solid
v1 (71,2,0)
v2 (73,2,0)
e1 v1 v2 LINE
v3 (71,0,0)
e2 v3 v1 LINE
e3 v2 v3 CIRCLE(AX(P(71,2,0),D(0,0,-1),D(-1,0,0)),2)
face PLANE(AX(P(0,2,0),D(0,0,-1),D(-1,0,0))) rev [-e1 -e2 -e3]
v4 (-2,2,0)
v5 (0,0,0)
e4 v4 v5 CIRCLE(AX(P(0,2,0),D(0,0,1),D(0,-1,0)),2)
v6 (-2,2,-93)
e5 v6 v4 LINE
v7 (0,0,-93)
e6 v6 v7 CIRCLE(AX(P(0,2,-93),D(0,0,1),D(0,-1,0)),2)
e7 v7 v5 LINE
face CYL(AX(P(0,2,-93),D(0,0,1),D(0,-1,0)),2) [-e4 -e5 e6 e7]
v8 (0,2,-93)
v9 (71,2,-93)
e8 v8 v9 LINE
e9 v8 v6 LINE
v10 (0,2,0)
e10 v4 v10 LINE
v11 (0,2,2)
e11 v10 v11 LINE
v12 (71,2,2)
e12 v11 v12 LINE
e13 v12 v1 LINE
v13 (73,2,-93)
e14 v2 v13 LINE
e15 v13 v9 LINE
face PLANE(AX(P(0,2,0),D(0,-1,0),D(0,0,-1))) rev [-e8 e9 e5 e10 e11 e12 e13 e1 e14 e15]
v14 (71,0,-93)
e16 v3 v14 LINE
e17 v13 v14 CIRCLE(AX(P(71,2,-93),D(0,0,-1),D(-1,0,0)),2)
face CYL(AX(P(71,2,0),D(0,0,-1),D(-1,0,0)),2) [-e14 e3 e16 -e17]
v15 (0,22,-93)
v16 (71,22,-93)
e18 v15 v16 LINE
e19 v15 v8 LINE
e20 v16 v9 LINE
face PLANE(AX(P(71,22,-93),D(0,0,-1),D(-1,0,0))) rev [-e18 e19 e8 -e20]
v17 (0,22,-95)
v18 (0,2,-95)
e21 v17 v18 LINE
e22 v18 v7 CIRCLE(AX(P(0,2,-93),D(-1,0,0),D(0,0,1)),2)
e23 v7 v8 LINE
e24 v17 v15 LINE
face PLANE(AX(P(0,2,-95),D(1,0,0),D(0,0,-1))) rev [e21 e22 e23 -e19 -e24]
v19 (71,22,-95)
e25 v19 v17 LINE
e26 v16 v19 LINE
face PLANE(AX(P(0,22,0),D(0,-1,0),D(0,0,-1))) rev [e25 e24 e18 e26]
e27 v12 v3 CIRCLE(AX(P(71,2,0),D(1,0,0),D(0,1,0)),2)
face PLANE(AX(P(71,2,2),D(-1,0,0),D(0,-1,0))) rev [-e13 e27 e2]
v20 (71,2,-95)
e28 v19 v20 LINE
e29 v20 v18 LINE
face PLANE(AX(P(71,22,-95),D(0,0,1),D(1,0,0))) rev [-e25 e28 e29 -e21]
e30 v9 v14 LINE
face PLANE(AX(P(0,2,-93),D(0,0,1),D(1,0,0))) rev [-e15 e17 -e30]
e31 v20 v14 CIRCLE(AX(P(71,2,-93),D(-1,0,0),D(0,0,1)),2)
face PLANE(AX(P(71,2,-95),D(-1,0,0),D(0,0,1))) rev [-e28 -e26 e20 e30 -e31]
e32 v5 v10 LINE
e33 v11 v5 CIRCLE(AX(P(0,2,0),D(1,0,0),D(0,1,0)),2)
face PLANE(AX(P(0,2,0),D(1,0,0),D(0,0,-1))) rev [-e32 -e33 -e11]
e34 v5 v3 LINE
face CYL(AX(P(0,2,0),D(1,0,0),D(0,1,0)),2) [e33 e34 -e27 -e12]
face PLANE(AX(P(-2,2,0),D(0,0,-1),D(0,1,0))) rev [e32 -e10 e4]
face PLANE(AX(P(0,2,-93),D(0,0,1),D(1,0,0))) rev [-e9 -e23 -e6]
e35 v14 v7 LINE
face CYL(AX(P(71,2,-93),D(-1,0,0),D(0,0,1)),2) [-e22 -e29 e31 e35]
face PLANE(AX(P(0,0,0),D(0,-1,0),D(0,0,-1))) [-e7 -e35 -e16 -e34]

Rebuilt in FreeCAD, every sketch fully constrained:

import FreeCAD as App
import Part
import Sketcher
Q = App.Units.Quantity

doc = App.newDocument("Part")
body = doc.addObject("PartDesign::Body", "Body")

# Sketch on XZ plane
sketch1 = doc.addObject("Sketcher::SketchObject", "Sketch")
body.addObject(sketch1)
sketch1.AttachmentSupport = (doc.XZ_Plane, [""])
sketch1.MapMode = "FlatFace"
sketch1.addGeometry([
    Part.LineSegment(App.Vector(0, -93, 0), App.Vector(0, 0, 0)),
    Part.LineSegment(App.Vector(0, 0, 0), App.Vector(71, 0, 0)),
    Part.LineSegment(App.Vector(71, 0, 0), App.Vector(71, -93, 0)),
    Part.LineSegment(App.Vector(71, -93, 0), App.Vector(0, -93, 0)),
], False)
sketch1.addConstraint([
    Sketcher.Constraint("Coincident", 0, 2, 1, 1),
    Sketcher.Constraint("Coincident", 1, 2, 2, 1),
    Sketcher.Constraint("Coincident", 2, 2, 3, 1),
    Sketcher.Constraint("Coincident", 3, 2, 0, 1),
    Sketcher.Constraint("Vertical", 0),
    Sketcher.Constraint("Horizontal", 1),
    Sketcher.Constraint("Vertical", 2),
    Sketcher.Constraint("Horizontal", 3),
    Sketcher.Constraint("Coincident", 0, 2, -1, 1),
    Sketcher.Constraint("DistanceX", 1, 1, 1, 2, Q("71 mm")),
    Sketcher.Constraint("DistanceY", 0, 1, 0, 2, Q("93 mm")),
])
pad1 = doc.addObject("PartDesign::Pad", "Pad")
body.addObject(pad1)
pad1.Profile = sketch1
pad1.Length = 2
pad1.Reversed = True

# Sketch on YZ plane
sketch2 = doc.addObject("Sketcher::SketchObject", "Sketch001")
body.addObject(sketch2)
sketch2.AttachmentSupport = (doc.YZ_Plane, [""])
sketch2.MapMode = "FlatFace"
sketch2.AttachmentOffset = App.Placement(App.Vector(0, 0, 71), App.Rotation())
sketch2.addGeometry([
    Part.LineSegment(App.Vector(2, 0, 0), App.Vector(0, 0, 0)),
    Part.LineSegment(App.Vector(0, 0, 0), App.Vector(0, -93, 0)),
    Part.LineSegment(App.Vector(0, -93, 0), App.Vector(2, -93, 0)),
    Part.LineSegment(App.Vector(2, -93, 0), App.Vector(2, 0, 0)),
], False)
sketch2.addGeometry(Part.LineSegment(App.Vector(2, -93, 0), App.Vector(2, 0, 0)), True)  # axis
sketch2.addConstraint([
    Sketcher.Constraint("Coincident", 0, 2, 1, 1),
    Sketcher.Constraint("Coincident", 1, 2, 2, 1),
    Sketcher.Constraint("Coincident", 2, 2, 3, 1),
    Sketcher.Constraint("Coincident", 3, 2, 0, 1),
    Sketcher.Constraint("Horizontal", 0),
    Sketcher.Constraint("Vertical", 1),
    Sketcher.Constraint("Horizontal", 2),
    Sketcher.Constraint("Vertical", 3),
    Sketcher.Constraint("Vertical", 4),
    Sketcher.Constraint("Coincident", 0, 2, -1, 1),
    Sketcher.Constraint("Coincident", 4, 1, 2, 2),
    Sketcher.Constraint("PointOnObject", 4, 2, -1),
    Sketcher.Constraint("DistanceX", 0, 2, 0, 1, Q("2 mm")),
    Sketcher.Constraint("DistanceY", 1, 2, 1, 1, Q("93 mm")),
])
revolution = doc.addObject("PartDesign::Revolution", "Revolution")
body.addObject(revolution)
revolution.Profile = sketch2
revolution.ReferenceAxis = (sketch2, ["Axis0"])
revolution.Angle = 90

# Sketch on XY plane
sketch3 = doc.addObject("Sketcher::SketchObject", "Sketch002")
body.addObject(sketch3)
sketch3.AttachmentSupport = (doc.XY_Plane, [""])
sketch3.MapMode = "FlatFace"
sketch3.addGeometry([
    Part.LineSegment(App.Vector(0, 2, 0), App.Vector(0, 0, 0)),
    Part.LineSegment(App.Vector(0, 0, 0), App.Vector(71, 0, 0)),
    Part.LineSegment(App.Vector(71, 0, 0), App.Vector(71, 2, 0)),
    Part.LineSegment(App.Vector(71, 2, 0), App.Vector(0, 2, 0)),
], False)
sketch3.addGeometry(Part.LineSegment(App.Vector(71, 2, 0), App.Vector(0, 2, 0)), True)  # axis
sketch3.addConstraint([
    Sketcher.Constraint("Coincident", 0, 2, 1, 1),
    Sketcher.Constraint("Coincident", 1, 2, 2, 1),
    Sketcher.Constraint("Coincident", 2, 2, 3, 1),
    Sketcher.Constraint("Coincident", 3, 2, 0, 1),
    Sketcher.Constraint("Vertical", 0),
    Sketcher.Constraint("Horizontal", 1),
    Sketcher.Constraint("Vertical", 2),
    Sketcher.Constraint("Horizontal", 3),
    Sketcher.Constraint("Horizontal", 4),
    Sketcher.Constraint("Coincident", 0, 2, -1, 1),
    Sketcher.Constraint("Coincident", 4, 1, 2, 2),
    Sketcher.Constraint("PointOnObject", 4, 2, -2),
    Sketcher.Constraint("DistanceX", 1, 1, 1, 2, Q("71 mm")),
    Sketcher.Constraint("DistanceY", 0, 2, 0, 1, Q("2 mm")),
])
revolution2 = doc.addObject("PartDesign::Revolution", "Revolution001")
body.addObject(revolution2)
revolution2.Profile = sketch3
revolution2.ReferenceAxis = (sketch3, ["Axis0"])
revolution2.Angle = 90

# Sketch on YZ plane
sketch4 = doc.addObject("Sketcher::SketchObject", "Sketch003")
body.addObject(sketch4)
sketch4.AttachmentSupport = (doc.YZ_Plane, [""])
sketch4.MapMode = "FlatFace"
sketch4.addGeometry([
    Part.LineSegment(App.Vector(2, -93, 0), App.Vector(0, -93, 0)),
    Part.LineSegment(App.Vector(0, -93, 0), App.Vector(0, 0, 0)),
    Part.LineSegment(App.Vector(0, 0, 0), App.Vector(2, 0, 0)),
    Part.LineSegment(App.Vector(2, 0, 0), App.Vector(2, -93, 0)),
], False)
sketch4.addGeometry(Part.LineSegment(App.Vector(2, 0, 0), App.Vector(2, -93, 0)), True)  # axis
sketch4.addConstraint([
    Sketcher.Constraint("Coincident", 0, 2, 1, 1),
    Sketcher.Constraint("Coincident", 1, 2, 2, 1),
    Sketcher.Constraint("Coincident", 2, 2, 3, 1),
    Sketcher.Constraint("Coincident", 3, 2, 0, 1),
    Sketcher.Constraint("Horizontal", 0),
    Sketcher.Constraint("Vertical", 1),
    Sketcher.Constraint("Horizontal", 2),
    Sketcher.Constraint("Vertical", 3),
    Sketcher.Constraint("Vertical", 4),
    Sketcher.Constraint("Coincident", 1, 2, -1, 1),
    Sketcher.Constraint("Coincident", 4, 1, 2, 2),
    Sketcher.Constraint("Horizontal", 0, 2, 4, 2),
    Sketcher.Constraint("DistanceX", 0, 2, 0, 1, Q("2 mm")),
    Sketcher.Constraint("DistanceY", 1, 1, 1, 2, Q("93 mm")),
])
revolution3 = doc.addObject("PartDesign::Revolution", "Revolution002")
body.addObject(revolution3)
revolution3.Profile = sketch4
revolution3.ReferenceAxis = (sketch4, ["Axis0"])
revolution3.Angle = 90

# Sketch on XY plane
sketch5 = doc.addObject("Sketcher::SketchObject", "Sketch004")
body.addObject(sketch5)
sketch5.AttachmentSupport = (doc.XY_Plane, [""])
sketch5.MapMode = "FlatFace"
sketch5.AttachmentOffset = App.Placement(App.Vector(0, 0, -93), App.Rotation())
sketch5.addGeometry([
    Part.LineSegment(App.Vector(71, 2, 0), App.Vector(71, 0, 0)),
    Part.LineSegment(App.Vector(71, 0, 0), App.Vector(0, 0, 0)),
    Part.LineSegment(App.Vector(0, 0, 0), App.Vector(0, 2, 0)),
    Part.LineSegment(App.Vector(0, 2, 0), App.Vector(71, 2, 0)),
], False)
sketch5.addGeometry(Part.LineSegment(App.Vector(0, 2, 0), App.Vector(71, 2, 0)), True)  # axis
sketch5.addConstraint([
    Sketcher.Constraint("Coincident", 0, 2, 1, 1),
    Sketcher.Constraint("Coincident", 1, 2, 2, 1),
    Sketcher.Constraint("Coincident", 2, 2, 3, 1),
    Sketcher.Constraint("Coincident", 3, 2, 0, 1),
    Sketcher.Constraint("Vertical", 0),
    Sketcher.Constraint("Horizontal", 1),
    Sketcher.Constraint("Vertical", 2),
    Sketcher.Constraint("Horizontal", 3),
    Sketcher.Constraint("Horizontal", 4),
    Sketcher.Constraint("Coincident", 1, 2, -1, 1),
    Sketcher.Constraint("Coincident", 4, 1, 2, 2),
    Sketcher.Constraint("Vertical", 0, 2, 4, 2),
    Sketcher.Constraint("DistanceX", 1, 2, 1, 1, Q("71 mm")),
    Sketcher.Constraint("DistanceY", 0, 2, 0, 1, Q("2 mm")),
])
revolution4 = doc.addObject("PartDesign::Revolution", "Revolution003")
body.addObject(revolution4)
revolution4.Profile = sketch5
revolution4.ReferenceAxis = (sketch5, ["Axis0"])
revolution4.Angle = 90

# Sketch on XZ plane
sketch6 = doc.addObject("Sketcher::SketchObject", "Sketch005")
body.addObject(sketch6)
sketch6.AttachmentSupport = (doc.XZ_Plane, [""])
sketch6.MapMode = "FlatFace"
sketch6.AttachmentOffset = App.Placement(App.Vector(0, 0, -2), App.Rotation())
sketch6.addGeometry([
    Part.LineSegment(App.Vector(0, -95, 0), App.Vector(0, -93, 0)),
    Part.LineSegment(App.Vector(0, -93, 0), App.Vector(71, -93, 0)),
    Part.LineSegment(App.Vector(71, -93, 0), App.Vector(71, -95, 0)),
    Part.LineSegment(App.Vector(71, -95, 0), App.Vector(0, -95, 0)),
], False)
sketch6.addConstraint([
    Sketcher.Constraint("Coincident", 0, 2, 1, 1),
    Sketcher.Constraint("Coincident", 1, 2, 2, 1),
    Sketcher.Constraint("Coincident", 2, 2, 3, 1),
    Sketcher.Constraint("Coincident", 3, 2, 0, 1),
    Sketcher.Constraint("Vertical", 0),
    Sketcher.Constraint("Horizontal", 1),
    Sketcher.Constraint("Vertical", 2),
    Sketcher.Constraint("Horizontal", 3),
    Sketcher.Constraint("PointOnObject", 0, 2, -2),
    Sketcher.Constraint("DistanceX", 1, 1, 1, 2, Q("71 mm")),
    Sketcher.Constraint("DistanceY", 0, 1, 0, 2, Q("2 mm")),
    Sketcher.Constraint("DistanceY", 0, 2, -1, 1, Q("93 mm")),
])
pad2 = doc.addObject("PartDesign::Pad", "Pad001")
body.addObject(pad2)
pad2.Profile = sketch6
pad2.Length = 20
pad2.Reversed = True

doc.recompute()
